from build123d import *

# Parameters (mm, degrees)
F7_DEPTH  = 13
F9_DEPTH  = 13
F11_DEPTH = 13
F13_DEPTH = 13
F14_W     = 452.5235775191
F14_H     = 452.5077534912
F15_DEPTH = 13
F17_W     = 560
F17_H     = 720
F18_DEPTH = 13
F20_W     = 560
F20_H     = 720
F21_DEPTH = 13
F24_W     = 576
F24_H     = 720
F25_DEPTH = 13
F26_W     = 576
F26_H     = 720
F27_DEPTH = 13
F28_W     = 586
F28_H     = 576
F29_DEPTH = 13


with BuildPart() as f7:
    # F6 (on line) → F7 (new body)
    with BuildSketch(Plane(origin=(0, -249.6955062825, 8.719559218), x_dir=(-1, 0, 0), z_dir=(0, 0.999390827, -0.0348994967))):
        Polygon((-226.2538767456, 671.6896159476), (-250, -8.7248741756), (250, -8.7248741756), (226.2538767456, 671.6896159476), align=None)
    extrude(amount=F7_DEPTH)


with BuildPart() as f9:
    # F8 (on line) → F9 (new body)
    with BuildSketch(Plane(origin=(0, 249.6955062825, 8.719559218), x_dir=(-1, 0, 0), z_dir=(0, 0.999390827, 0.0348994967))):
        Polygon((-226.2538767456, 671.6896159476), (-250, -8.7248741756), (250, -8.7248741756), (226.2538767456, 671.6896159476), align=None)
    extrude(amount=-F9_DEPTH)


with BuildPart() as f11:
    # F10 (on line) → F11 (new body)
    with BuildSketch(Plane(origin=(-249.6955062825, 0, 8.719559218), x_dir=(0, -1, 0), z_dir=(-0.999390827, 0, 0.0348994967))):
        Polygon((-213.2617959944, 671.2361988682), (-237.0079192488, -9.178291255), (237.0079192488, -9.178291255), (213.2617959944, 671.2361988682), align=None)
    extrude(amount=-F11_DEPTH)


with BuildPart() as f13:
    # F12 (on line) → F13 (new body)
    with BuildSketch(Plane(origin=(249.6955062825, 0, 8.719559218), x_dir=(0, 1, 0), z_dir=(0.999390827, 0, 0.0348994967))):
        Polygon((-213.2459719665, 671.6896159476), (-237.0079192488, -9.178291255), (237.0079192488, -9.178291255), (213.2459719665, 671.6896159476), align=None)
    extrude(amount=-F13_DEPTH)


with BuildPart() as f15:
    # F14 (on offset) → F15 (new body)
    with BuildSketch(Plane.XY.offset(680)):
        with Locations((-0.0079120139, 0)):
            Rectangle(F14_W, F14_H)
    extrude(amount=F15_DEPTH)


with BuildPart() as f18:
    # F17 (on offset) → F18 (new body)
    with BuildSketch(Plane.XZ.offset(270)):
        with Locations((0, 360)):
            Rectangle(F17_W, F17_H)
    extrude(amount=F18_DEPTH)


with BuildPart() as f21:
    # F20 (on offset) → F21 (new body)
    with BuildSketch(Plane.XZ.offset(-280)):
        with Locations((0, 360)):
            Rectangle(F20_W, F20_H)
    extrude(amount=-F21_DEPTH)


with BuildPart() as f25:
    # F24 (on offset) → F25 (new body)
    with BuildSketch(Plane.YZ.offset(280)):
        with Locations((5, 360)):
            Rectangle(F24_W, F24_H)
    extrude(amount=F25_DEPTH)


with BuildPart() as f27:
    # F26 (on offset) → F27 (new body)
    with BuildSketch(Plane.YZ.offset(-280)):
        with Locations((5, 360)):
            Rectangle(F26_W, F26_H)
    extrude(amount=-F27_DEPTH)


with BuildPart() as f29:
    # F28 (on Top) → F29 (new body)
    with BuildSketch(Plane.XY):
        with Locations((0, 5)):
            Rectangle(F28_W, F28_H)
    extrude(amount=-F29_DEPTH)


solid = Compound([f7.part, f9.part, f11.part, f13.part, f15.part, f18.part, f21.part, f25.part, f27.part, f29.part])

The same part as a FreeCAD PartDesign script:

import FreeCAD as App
import Part
import Sketcher
from FreeCAD import Vector

doc = App.newDocument("Part")
body = doc.addObject("PartDesign::Body", "Body")

# Sketch on an angled plane
sketch1 = body.newObject("Sketcher::SketchObject", "Sketch")
sketch1.Placement = App.Placement(Vector(0, -249.695506, 8.719559), App.Rotation(Vector(-1, 0, 0), Vector(0, 0.034899497, 0.999390827), Vector(0, 0.999390827, -0.034899497), "ZXY"))
sketch1.addGeometry([
    Part.LineSegment(Vector(-226.253877, 671.689616, 0), Vector(-250, -8.724874, 0)),
    Part.LineSegment(Vector(-250, -8.724874, 0), Vector(250, -8.724874, 0)),
    Part.LineSegment(Vector(250, -8.724874, 0), Vector(226.253877, 671.689616, 0)),
    Part.LineSegment(Vector(226.253877, 671.689616, 0), Vector(-226.253877, 671.689616, 0)),
], False)
sketch1.addConstraint([
    Sketcher.Constraint("Coincident", 0, 2, 1, 1),
    Sketcher.Constraint("Coincident", 1, 2, 2, 1),
    Sketcher.Constraint("Coincident", 2, 2, 3, 1),
    Sketcher.Constraint("Coincident", 3, 2, 0, 1),
    Sketcher.Constraint("Horizontal", 1),
    Sketcher.Constraint("Horizontal", 3),
    Sketcher.Constraint("Equal", 0, 2),
    Sketcher.Constraint("DistanceX", 1, 1, 1, 2, 500.0),
    Sketcher.Constraint("DistanceX", 0, 2, -1, 1, 250.0),
    Sketcher.Constraint("DistanceX", 3, 2, 3, 1, 452.507753),
    Sketcher.Constraint("DistanceY", 1, 2, 2, 2, 680.41449),
    Sketcher.Constraint("DistanceY", 0, 2, -1, 1, 8.724874),
])
pad1 = body.newObject("PartDesign::Pad", "Pad")
pad1.Profile = sketch1
pad1.Length = 13
body2 = doc.addObject("PartDesign::Body", "Body001")

# Sketch on an angled plane
sketch2 = body2.newObject("Sketcher::SketchObject", "Sketch001")
sketch2.Placement = App.Placement(Vector(0, 249.695506, 8.719559), App.Rotation(Vector(-1, 0, 0), Vector(0, -0.034899497, 0.999390827), Vector(0, 0.999390827, 0.034899497), "ZXY"))
sketch2.addGeometry([
    Part.LineSegment(Vector(-226.253877, 671.689616, 0), Vector(-250, -8.724874, 0)),
    Part.LineSegment(Vector(-250, -8.724874, 0), Vector(250, -8.724874, 0)),
    Part.LineSegment(Vector(250, -8.724874, 0), Vector(226.253877, 671.689616, 0)),
    Part.LineSegment(Vector(226.253877, 671.689616, 0), Vector(-226.253877, 671.689616, 0)),
], False)
sketch2.addConstraint([
    Sketcher.Constraint("Coincident", 0, 2, 1, 1),
    Sketcher.Constraint("Coincident", 1, 2, 2, 1),
    Sketcher.Constraint("Coincident", 2, 2, 3, 1),
    Sketcher.Constraint("Coincident", 3, 2, 0, 1),
    Sketcher.Constraint("Horizontal", 1),
    Sketcher.Constraint("Horizontal", 3),
    Sketcher.Constraint("Equal", 0, 2),
    Sketcher.Constraint("DistanceX", 1, 1, 1, 2, 500.0),
    Sketcher.Constraint("DistanceX", 0, 2, -1, 1, 250.0),
    Sketcher.Constraint("DistanceX", 3, 2, 3, 1, 452.507753),
    Sketcher.Constraint("DistanceY", 1, 2, 2, 2, 680.41449),
    Sketcher.Constraint("DistanceY", 0, 2, -1, 1, 8.724874),
])
pad2 = body2.newObject("PartDesign::Pad", "Pad001")
pad2.Profile = sketch2
pad2.Length = 13
pad2.Reversed = True
body3 = doc.addObject("PartDesign::Body", "Body002")

# Sketch on an angled plane
sketch3 = body3.newObject("Sketcher::SketchObject", "Sketch002")
sketch3.Placement = App.Placement(Vector(-249.695506, 0, 8.719559), App.Rotation(Vector(0, -1, 0), Vector(0.034899497, 0, 0.999390827), Vector(-0.999390827, 0, 0.034899497), "ZXY"))
sketch3.addGeometry([
    Part.LineSegment(Vector(-213.261796, 671.236199, 0), Vector(-237.007919, -9.178291, 0)),
    Part.LineSegment(Vector(-237.007919, -9.178291, 0), Vector(237.007919, -9.178291, 0)),
    Part.LineSegment(Vector(237.007919, -9.178291, 0), Vector(213.261796, 671.236199, 0)),
    Part.LineSegment(Vector(213.261796, 671.236199, 0), Vector(-213.261796, 671.236199, 0)),
], False)
sketch3.addConstraint([
    Sketcher.Constraint("Coincident", 0, 2, 1, 1),
    Sketcher.Constraint("Coincident", 1, 2, 2, 1),
    Sketcher.Constraint("Coincident", 2, 2, 3, 1),
    Sketcher.Constraint("Coincident", 3, 2, 0, 1),
    Sketcher.Constraint("Horizontal", 1),
    Sketcher.Constraint("Horizontal", 3),
    Sketcher.Constraint("Equal", 0, 2),
    Sketcher.Constraint("DistanceX", 1, 1, 1, 2, 474.015838),
    Sketcher.Constraint("DistanceX", 3, 2, 3, 1, 426.523592),
    Sketcher.Constraint("DistanceY", -1, 1, 2, 2, 671.236199),
    Sketcher.Constraint("DistanceX", 0, 2, -1, 1, 237.007919),
    Sketcher.Constraint("DistanceY", 0, 2, -1, 1, 9.178291),
])
pad3 = body3.newObject("PartDesign::Pad", "Pad002")
pad3.Profile = sketch3
pad3.Length = 13
pad3.Reversed = True
body4 = doc.addObject("PartDesign::Body", "Body003")

# Sketch on an angled plane
sketch4 = body4.newObject("Sketcher::SketchObject", "Sketch003")
sketch4.Placement = App.Placement(Vector(249.695506, 0, 8.719559), App.Rotation(Vector(0, 1, 0), Vector(-0.034899497, 0, 0.999390827), Vector(0.999390827, 0, 0.034899497), "ZXY"))
sketch4.addGeometry([
    Part.LineSegment(Vector(-213.245972, 671.689616, 0), Vector(-237.007919, -9.178291, 0)),
    Part.LineSegment(Vector(-237.007919, -9.178291, 0), Vector(237.007919, -9.178291, 0)),
    Part.LineSegment(Vector(237.007919, -9.178291, 0), Vector(213.245972, 671.689616, 0)),
    Part.LineSegment(Vector(213.245972, 671.689616, 0), Vector(-213.245972, 671.689616, 0)),
], False)
sketch4.addConstraint([
    Sketcher.Constraint("Coincident", 0, 2, 1, 1),
    Sketcher.Constraint("Coincident", 1, 2, 2, 1),
    Sketcher.Constraint("Coincident", 2, 2, 3, 1),
    Sketcher.Constraint("Coincident", 3, 2, 0, 1),
    Sketcher.Constraint("Horizontal", 1),
    Sketcher.Constraint("Horizontal", 3),
    Sketcher.Constraint("Equal", 0, 2),
    Sketcher.Constraint("DistanceX", 1, 1, 1, 2, 474.015838),
    Sketcher.Constraint("Distance", 0, 681.282421),
    Sketcher.Constraint("DistanceX", 3, 2, 3, 1, 426.491944),
    Sketcher.Constraint("DistanceX", 0, 2, -1, 1, 237.007919),
    Sketcher.Constraint("DistanceY", 0, 2, -1, 1, 9.178291),
])
pad4 = body4.newObject("PartDesign::Pad", "Pad003")
pad4.Profile = sketch4
pad4.Length = 13
pad4.Reversed = True
body5 = doc.addObject("PartDesign::Body", "Body004")

# Sketch on XY plane
sketch5 = body5.newObject("Sketcher::SketchObject", "Sketch004")
sketch5.AttachmentSupport = (doc.getObject("XY_Plane004"), [""])
sketch5.MapMode = "FlatFace"
sketch5.AttachmentOffset = App.Placement(Vector(0, 0, 680), App.Rotation())
sketch5.addGeometry([
    Part.LineSegment(Vector(-226.269701, 226.253877, 0), Vector(-226.269701, -226.253877, 0)),
    Part.LineSegment(Vector(-226.269701, -226.253877, 0), Vector(226.253877, -226.253877, 0)),
    Part.LineSegment(Vector(226.253877, -226.253877, 0), Vector(226.253877, 226.253877, 0)),
    Part.LineSegment(Vector(226.253877, 226.253877, 0), Vector(-226.269701, 226.253877, 0)),
], False)
sketch5.addConstraint([
    Sketcher.Constraint("Coincident", 0, 2, 1, 1),
    Sketcher.Constraint("Coincident", 1, 2, 2, 1),
    Sketcher.Constraint("Coincident", 2, 2, 3, 1),
    Sketcher.Constraint("Coincident", 3, 2, 0, 1),
    Sketcher.Constraint("Vertical", 0),
    Sketcher.Constraint("Horizontal", 1),
    Sketcher.Constraint("Vertical", 2),
    Sketcher.Constraint("Horizontal", 3),
    Sketcher.Constraint("DistanceX", 0, 2, -1, 1, 226.269701),
    Sketcher.Constraint("DistanceX", 1, 1, 1, 2, 452.523578),
    Sketcher.Constraint("DistanceY", 0, 2, 0, 1, 452.507753),
    Sketcher.Constraint("DistanceY", 0, 2, -1, 1, 226.253877),
])
pad5 = body5.newObject("PartDesign::Pad", "Pad004")
pad5.Profile = sketch5
pad5.Length = 13
body6 = doc.addObject("PartDesign::Body", "Body005")

# Sketch on XZ plane
sketch6 = body6.newObject("Sketcher::SketchObject", "Sketch005")
sketch6.AttachmentSupport = (doc.getObject("XZ_Plane005"), [""])
sketch6.MapMode = "FlatFace"
sketch6.AttachmentOffset = App.Placement(Vector(0, 0, 270), App.Rotation())
sketch6.addGeometry([
    Part.LineSegment(Vector(-280, 720, 0), Vector(-280, 0, 0)),
    Part.LineSegment(Vector(-280, 0, 0), Vector(280, 0, 0)),
    Part.LineSegment(Vector(280, 0, 0), Vector(280, 720, 0)),
    Part.LineSegment(Vector(280, 720, 0), Vector(-280, 720, 0)),
], False)
sketch6.addConstraint([
    Sketcher.Constraint("Coincident", 0, 2, 1, 1),
    Sketcher.Constraint("Coincident", 1, 2, 2, 1),
    Sketcher.Constraint("Coincident", 2, 2, 3, 1),
    Sketcher.Constraint("Coincident", 3, 2, 0, 1),
    Sketcher.Constraint("Vertical", 0),
    Sketcher.Constraint("Horizontal", 1),
    Sketcher.Constraint("Vertical", 2),
    Sketcher.Constraint("Horizontal", 3),
    Sketcher.Constraint("Symmetric", 0, 2, 1, 2, -1, 1),
    Sketcher.Constraint("DistanceX", 1, 1, 1, 2, 560.0),
    Sketcher.Constraint("DistanceY", 0, 2, 0, 1, 720.0),
])
pad6 = body6.newObject("PartDesign::Pad", "Pad005")
pad6.Profile = sketch6
pad6.Length = 13
body7 = doc.addObject("PartDesign::Body", "Body006")

# Sketch on XZ plane
sketch7 = body7.newObject("Sketcher::SketchObject", "Sketch006")
sketch7.AttachmentSupport = (doc.getObject("XZ_Plane006"), [""])
sketch7.MapMode = "FlatFace"
sketch7.AttachmentOffset = App.Placement(Vector(0, 0, -280), App.Rotation())
sketch7.addGeometry([
    Part.LineSegment(Vector(-280, 720, 0), Vector(-280, 0, 0)),
    Part.LineSegment(Vector(-280, 0, 0), Vector(280, 0, 0)),
    Part.LineSegment(Vector(280, 0, 0), Vector(280, 720, 0)),
    Part.LineSegment(Vector(280, 720, 0), Vector(-280, 720, 0)),
], False)
sketch7.addConstraint([
    Sketcher.Constraint("Coincident", 0, 2, 1, 1),
    Sketcher.Constraint("Coincident", 1, 2, 2, 1),
    Sketcher.Constraint("Coincident", 2, 2, 3, 1),
    Sketcher.Constraint("Coincident", 3, 2, 0, 1),
    Sketcher.Constraint("Vertical", 0),
    Sketcher.Constraint("Horizontal", 1),
    Sketcher.Constraint("Vertical", 2),
    Sketcher.Constraint("Horizontal", 3),
    Sketcher.Constraint("Symmetric", 0, 2, 1, 2, -1, 1),
    Sketcher.Constraint("DistanceX", 1, 1, 1, 2, 560.0),
    Sketcher.Constraint("DistanceY", 0, 2, 0, 1, 720.0),
])
pad7 = body7.newObject("PartDesign::Pad", "Pad006")
pad7.Profile = sketch7
pad7.Length = 13
pad7.Reversed = True
body8 = doc.addObject("PartDesign::Body", "Body007")

# Sketch on YZ plane
sketch8 = body8.newObject("Sketcher::SketchObject", "Sketch007")
sketch8.AttachmentSupport = (doc.getObject("YZ_Plane007"), [""])
sketch8.MapMode = "FlatFace"
sketch8.AttachmentOffset = App.Placement(Vector(0, 0, 280), App.Rotation())
sketch8.addGeometry([
    Part.LineSegment(Vector(-283, 720, 0), Vector(-283, 0, 0)),
    Part.LineSegment(Vector(-283, 0, 0), Vector(293, 0, 0)),
    Part.LineSegment(Vector(293, 0, 0), Vector(293, 720, 0)),
    Part.LineSegment(Vector(293, 720, 0), Vector(-283, 720, 0)),
], False)
sketch8.addConstraint([
    Sketcher.Constraint("Coincident", 0, 2, 1, 1),
    Sketcher.Constraint("Coincident", 1, 2, 2, 1),
    Sketcher.Constraint("Coincident", 2, 2, 3, 1),
    Sketcher.Constraint("Coincident", 3, 2, 0, 1),
    Sketcher.Constraint("Vertical", 0),
    Sketcher.Constraint("Horizontal", 1),
    Sketcher.Constraint("Vertical", 2),
    Sketcher.Constraint("Horizontal", 3),
    Sketcher.Constraint("PointOnObject", 0, 2, -1),
    Sketcher.Constraint("DistanceX", 1, 1, 1, 2, 576.0),
    Sketcher.Constraint("DistanceY", 0, 2, 0, 1, 720.0),
    Sketcher.Constraint("DistanceX", 0, 2, -1, 1, 283.0),
])
pad8 = body8.newObject("PartDesign::Pad", "Pad007")
pad8.Profile = sketch8
pad8.Length = 13
body9 = doc.addObject("PartDesign::Body", "Body008")

# Sketch on YZ plane
sketch9 = body9.newObject("Sketcher::SketchObject", "Sketch008")
sketch9.AttachmentSupport = (doc.getObject("YZ_Plane008"), [""])
sketch9.MapMode = "FlatFace"
sketch9.AttachmentOffset = App.Placement(Vector(0, 0, -280), App.Rotation())
sketch9.addGeometry([
    Part.LineSegment(Vector(-283, 720, 0), Vector(-283, 0, 0)),
    Part.LineSegment(Vector(-283, 0, 0), Vector(293, 0, 0)),
    Part.LineSegment(Vector(293, 0, 0), Vector(293, 720, 0)),
    Part.LineSegment(Vector(293, 720, 0), Vector(-283, 720, 0)),
], False)
sketch9.addConstraint([
    Sketcher.Constraint("Coincident", 0, 2, 1, 1),
    Sketcher.Constraint("Coincident", 1, 2, 2, 1),
    Sketcher.Constraint("Coincident", 2, 2, 3, 1),
    Sketcher.Constraint("Coincident", 3, 2, 0, 1),
    Sketcher.Constraint("Vertical", 0),
    Sketcher.Constraint("Horizontal", 1),
    Sketcher.Constraint("Vertical", 2),
    Sketcher.Constraint("Horizontal", 3),
    Sketcher.Constraint("PointOnObject", 0, 2, -1),
    Sketcher.Constraint("DistanceX", 1, 1, 1, 2, 576.0),
    Sketcher.Constraint("DistanceY", 0, 2, 0, 1, 720.0),
    Sketcher.Constraint("DistanceX", 0, 2, -1, 1, 283.0),
])
pad9 = body9.newObject("PartDesign::Pad", "Pad008")
pad9.Profile = sketch9
pad9.Length = 13
pad9.Reversed = True
body10 = doc.addObject("PartDesign::Body", "Body009")

# Sketch on XY plane
sketch10 = body10.newObject("Sketcher::SketchObject", "Sketch009")
sketch10.AttachmentSupport = (doc.getObject("XY_Plane009"), [""])
sketch10.MapMode = "FlatFace"
sketch10.addGeometry([
    Part.LineSegment(Vector(-293, 293, 0), Vector(-293, -283, 0)),
    Part.LineSegment(Vector(-293, -283, 0), Vector(293, -283, 0)),
    Part.LineSegment(Vector(293, -283, 0), Vector(293, 293, 0)),
    Part.LineSegment(Vector(293, 293, 0), Vector(-293, 293, 0)),
], False)
sketch10.addConstraint([
    Sketcher.Constraint("Coincident", 0, 2, 1, 1),
    Sketcher.Constraint("Coincident", 1, 2, 2, 1),
    Sketcher.Constraint("Coincident", 2, 2, 3, 1),
    Sketcher.Constraint("Coincident", 3, 2, 0, 1),
    Sketcher.Constraint("Vertical", 0),
    Sketcher.Constraint("Horizontal", 1),
    Sketcher.Constraint("Vertical", 2),
    Sketcher.Constraint("Horizontal", 3),
    Sketcher.Constraint("DistanceX", 1, 1, 1, 2, 586.0),
    Sketcher.Constraint("DistanceY", 0, 2, 0, 1, 576.0),
    Sketcher.Constraint("DistanceX", 0, 2, -1, 1, 293.0),
    Sketcher.Constraint("DistanceY", 0, 2, -1, 1, 283.0),
])
pad10 = body10.newObject("PartDesign::Pad", "Pad009")
pad10.Profile = sketch10
pad10.Length = 13
pad10.Reversed = True

doc.recompute()
